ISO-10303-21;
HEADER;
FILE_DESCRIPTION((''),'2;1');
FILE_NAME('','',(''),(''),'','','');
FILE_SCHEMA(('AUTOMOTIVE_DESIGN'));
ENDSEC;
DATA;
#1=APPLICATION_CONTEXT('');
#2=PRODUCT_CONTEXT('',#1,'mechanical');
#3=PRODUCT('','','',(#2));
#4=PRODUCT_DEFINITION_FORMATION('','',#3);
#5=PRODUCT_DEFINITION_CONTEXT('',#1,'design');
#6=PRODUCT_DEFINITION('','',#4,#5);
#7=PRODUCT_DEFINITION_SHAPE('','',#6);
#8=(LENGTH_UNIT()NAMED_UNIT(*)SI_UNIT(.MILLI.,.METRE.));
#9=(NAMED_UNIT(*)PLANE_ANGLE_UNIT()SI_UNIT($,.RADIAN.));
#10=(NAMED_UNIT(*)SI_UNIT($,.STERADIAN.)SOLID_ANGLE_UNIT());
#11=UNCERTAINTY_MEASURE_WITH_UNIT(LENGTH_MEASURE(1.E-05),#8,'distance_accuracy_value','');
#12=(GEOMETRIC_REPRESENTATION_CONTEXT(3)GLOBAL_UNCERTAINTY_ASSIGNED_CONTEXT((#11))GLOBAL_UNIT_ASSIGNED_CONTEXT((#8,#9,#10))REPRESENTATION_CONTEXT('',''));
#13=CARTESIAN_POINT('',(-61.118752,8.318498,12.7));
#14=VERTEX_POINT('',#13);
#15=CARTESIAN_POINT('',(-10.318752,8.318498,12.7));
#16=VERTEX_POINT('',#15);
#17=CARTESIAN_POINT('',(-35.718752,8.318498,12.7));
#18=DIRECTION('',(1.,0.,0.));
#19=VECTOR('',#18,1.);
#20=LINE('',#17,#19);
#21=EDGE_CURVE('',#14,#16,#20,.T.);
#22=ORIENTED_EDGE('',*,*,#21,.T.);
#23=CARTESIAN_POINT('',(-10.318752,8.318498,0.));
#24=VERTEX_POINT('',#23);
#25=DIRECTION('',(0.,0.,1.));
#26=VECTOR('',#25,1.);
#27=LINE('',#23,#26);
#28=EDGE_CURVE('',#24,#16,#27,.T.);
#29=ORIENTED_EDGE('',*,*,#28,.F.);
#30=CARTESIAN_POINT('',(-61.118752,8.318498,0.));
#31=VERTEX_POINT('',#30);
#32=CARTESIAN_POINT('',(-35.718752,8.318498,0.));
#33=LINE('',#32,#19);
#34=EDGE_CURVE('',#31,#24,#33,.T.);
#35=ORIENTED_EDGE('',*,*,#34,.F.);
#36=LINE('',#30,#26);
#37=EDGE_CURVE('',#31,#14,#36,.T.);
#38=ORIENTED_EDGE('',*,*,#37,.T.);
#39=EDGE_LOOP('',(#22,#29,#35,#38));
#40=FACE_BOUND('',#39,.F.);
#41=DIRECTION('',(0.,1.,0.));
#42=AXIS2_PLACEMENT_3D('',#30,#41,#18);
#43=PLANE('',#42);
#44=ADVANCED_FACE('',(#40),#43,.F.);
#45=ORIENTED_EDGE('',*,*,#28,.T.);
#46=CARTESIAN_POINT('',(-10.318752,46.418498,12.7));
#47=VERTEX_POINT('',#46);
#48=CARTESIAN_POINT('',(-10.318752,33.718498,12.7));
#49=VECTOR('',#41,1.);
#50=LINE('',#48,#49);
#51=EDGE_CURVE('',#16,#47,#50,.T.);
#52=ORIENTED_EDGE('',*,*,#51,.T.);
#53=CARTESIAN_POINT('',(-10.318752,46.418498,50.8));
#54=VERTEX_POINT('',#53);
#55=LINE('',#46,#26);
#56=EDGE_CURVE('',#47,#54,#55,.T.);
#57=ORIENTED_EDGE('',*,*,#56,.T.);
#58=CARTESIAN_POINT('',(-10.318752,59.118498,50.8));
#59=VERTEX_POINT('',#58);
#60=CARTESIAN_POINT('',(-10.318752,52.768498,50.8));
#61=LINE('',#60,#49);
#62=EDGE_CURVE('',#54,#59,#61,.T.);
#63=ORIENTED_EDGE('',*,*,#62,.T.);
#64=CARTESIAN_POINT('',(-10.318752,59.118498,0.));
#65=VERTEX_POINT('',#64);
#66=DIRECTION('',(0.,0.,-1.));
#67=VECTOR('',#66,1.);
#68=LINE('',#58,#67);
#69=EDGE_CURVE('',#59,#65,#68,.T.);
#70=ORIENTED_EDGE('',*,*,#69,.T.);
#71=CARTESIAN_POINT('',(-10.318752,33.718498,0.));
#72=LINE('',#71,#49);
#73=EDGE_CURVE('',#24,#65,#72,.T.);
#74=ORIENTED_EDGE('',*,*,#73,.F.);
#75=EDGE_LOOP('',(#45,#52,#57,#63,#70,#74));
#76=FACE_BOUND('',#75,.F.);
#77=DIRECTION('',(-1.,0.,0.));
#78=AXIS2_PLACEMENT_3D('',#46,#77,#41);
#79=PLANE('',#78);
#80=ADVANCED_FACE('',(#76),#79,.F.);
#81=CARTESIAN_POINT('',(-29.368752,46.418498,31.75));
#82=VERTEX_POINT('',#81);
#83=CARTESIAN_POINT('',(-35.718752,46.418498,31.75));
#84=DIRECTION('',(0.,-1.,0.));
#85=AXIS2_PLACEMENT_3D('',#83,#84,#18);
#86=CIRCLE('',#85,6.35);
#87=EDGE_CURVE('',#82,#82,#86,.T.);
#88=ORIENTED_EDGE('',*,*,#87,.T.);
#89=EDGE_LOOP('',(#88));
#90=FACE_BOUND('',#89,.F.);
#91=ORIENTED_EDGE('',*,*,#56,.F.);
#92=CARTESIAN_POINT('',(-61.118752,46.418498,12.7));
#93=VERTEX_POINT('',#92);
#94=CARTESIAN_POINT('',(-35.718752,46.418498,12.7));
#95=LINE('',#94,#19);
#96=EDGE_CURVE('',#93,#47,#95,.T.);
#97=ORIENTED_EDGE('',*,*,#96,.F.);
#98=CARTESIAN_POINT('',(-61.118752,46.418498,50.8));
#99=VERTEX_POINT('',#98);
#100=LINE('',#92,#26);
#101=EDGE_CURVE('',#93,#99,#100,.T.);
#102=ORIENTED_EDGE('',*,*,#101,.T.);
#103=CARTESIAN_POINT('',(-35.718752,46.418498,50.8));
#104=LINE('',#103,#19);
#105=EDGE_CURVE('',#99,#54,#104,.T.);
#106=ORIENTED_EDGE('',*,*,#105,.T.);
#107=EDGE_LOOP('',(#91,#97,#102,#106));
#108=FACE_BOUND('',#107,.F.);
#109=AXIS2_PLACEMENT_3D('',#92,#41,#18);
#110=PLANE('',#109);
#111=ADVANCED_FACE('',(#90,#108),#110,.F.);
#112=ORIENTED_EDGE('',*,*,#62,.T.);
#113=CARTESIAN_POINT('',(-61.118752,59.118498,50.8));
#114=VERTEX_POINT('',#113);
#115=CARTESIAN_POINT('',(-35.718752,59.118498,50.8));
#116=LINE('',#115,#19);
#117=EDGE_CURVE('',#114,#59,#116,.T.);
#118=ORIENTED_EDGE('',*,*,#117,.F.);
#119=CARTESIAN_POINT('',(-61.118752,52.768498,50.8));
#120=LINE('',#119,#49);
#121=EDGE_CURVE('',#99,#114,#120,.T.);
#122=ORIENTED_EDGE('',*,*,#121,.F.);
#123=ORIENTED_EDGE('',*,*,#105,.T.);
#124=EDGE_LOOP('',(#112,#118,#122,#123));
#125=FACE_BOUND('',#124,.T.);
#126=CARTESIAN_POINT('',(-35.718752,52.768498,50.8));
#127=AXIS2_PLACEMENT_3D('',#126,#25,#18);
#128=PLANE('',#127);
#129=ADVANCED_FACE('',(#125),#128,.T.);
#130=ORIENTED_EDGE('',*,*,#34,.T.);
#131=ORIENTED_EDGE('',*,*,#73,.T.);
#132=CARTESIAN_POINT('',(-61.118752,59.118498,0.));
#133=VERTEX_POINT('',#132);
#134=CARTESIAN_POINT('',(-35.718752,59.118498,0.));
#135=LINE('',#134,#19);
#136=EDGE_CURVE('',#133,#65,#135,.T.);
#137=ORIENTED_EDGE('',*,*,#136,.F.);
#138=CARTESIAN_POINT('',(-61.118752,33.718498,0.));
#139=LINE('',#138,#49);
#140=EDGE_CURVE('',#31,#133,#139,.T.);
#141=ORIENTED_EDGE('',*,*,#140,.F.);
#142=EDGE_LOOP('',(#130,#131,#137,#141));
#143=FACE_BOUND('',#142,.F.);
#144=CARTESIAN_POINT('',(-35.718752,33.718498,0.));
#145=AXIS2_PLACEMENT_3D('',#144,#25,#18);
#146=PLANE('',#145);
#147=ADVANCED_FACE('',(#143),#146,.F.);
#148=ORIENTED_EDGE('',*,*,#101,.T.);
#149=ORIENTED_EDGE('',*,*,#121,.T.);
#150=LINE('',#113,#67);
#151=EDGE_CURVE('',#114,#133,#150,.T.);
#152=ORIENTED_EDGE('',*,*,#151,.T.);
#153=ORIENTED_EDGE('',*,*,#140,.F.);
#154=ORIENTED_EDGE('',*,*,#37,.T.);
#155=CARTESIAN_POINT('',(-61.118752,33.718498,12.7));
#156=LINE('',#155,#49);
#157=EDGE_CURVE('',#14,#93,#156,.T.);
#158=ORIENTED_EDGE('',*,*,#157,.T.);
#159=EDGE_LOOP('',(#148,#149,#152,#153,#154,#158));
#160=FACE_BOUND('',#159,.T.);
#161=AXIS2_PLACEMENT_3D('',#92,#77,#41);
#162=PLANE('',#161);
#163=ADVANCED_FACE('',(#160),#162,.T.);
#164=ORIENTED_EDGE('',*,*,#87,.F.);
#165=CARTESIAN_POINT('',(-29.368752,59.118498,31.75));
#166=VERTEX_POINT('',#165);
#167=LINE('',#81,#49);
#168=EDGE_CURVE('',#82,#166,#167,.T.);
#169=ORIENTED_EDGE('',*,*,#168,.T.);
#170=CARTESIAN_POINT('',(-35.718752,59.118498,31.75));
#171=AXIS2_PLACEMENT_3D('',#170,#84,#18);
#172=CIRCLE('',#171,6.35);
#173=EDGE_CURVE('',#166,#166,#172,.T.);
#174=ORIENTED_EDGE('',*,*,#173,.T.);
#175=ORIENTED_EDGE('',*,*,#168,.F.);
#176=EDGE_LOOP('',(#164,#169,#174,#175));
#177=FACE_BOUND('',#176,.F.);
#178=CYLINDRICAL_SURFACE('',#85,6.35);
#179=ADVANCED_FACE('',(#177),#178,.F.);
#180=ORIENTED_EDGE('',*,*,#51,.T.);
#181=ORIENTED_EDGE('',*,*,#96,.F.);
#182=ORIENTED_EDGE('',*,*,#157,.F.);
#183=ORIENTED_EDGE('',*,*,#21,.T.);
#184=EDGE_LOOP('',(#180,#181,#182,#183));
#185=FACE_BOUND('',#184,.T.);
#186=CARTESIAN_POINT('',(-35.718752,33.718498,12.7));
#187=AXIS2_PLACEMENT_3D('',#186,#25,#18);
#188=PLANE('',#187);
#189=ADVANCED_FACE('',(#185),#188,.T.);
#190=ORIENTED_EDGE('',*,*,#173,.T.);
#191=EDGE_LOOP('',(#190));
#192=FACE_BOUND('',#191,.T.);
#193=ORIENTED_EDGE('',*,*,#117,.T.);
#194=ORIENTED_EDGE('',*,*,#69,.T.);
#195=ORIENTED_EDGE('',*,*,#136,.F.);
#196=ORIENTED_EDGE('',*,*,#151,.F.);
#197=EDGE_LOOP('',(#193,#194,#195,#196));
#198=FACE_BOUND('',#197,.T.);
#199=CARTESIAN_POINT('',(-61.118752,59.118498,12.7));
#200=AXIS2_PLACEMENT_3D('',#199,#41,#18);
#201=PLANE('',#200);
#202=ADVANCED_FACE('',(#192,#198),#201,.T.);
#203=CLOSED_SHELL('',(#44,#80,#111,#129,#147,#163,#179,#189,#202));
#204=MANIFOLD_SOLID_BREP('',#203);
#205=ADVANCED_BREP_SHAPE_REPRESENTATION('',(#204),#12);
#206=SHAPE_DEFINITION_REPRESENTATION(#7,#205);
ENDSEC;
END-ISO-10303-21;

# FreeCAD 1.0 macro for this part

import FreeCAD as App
import Part
import Sketcher
from FreeCAD import Vector
Q = App.Units.Quantity

doc = App.newDocument("Part")
body = doc.addObject("PartDesign::Body", "Body")

# Sketch on XY plane
sketch1 = body.newObject("Sketcher::SketchObject", "Sketch")
sketch1.AttachmentSupport = (doc.getObject("XY_Plane"), [""])
sketch1.MapMode = "FlatFace"
sketch1.addGeometry([
    Part.LineSegment(Vector(-61.118752, 59.118498, 0), Vector(-61.118752, 8.318498, 0)),
    Part.LineSegment(Vector(-61.118752, 8.318498, 0), Vector(-10.318752, 8.318498, 0)),
    Part.LineSegment(Vector(-10.318752, 8.318498, 0), Vector(-10.318752, 59.118498, 0)),
    Part.LineSegment(Vector(-10.318752, 59.118498, 0), Vector(-61.118752, 59.118498, 0)),
], False)
sketch1.addConstraint([
    Sketcher.Constraint("Coincident", 0, 2, 1, 1),
    Sketcher.Constraint("Coincident", 1, 2, 2, 1),
    Sketcher.Constraint("Coincident", 2, 2, 3, 1),
    Sketcher.Constraint("Coincident", 3, 2, 0, 1),
    Sketcher.Constraint("Vertical", 0),
    Sketcher.Constraint("Horizontal", 1),
    Sketcher.Constraint("Vertical", 2),
    Sketcher.Constraint("Horizontal", 3),
    Sketcher.Constraint("Equal", 3, 0),
    Sketcher.Constraint("DistanceX", 1, 1, 1, 2, Q("2 in")),
    Sketcher.Constraint("DistanceX", 0, 2, -1, 1, Q("2.4062501 in")),
    Sketcher.Constraint("DistanceY", -1, 1, 0, 2, Q("0.3274999 in")),
])
pad1 = body.newObject("PartDesign::Pad", "Pad")
pad1.Profile = sketch1
pad1.Length = Q("0.5 in")

# Sketch on XY plane
sketch2 = body.newObject("Sketcher::SketchObject", "Sketch001")
sketch2.AttachmentSupport = (doc.getObject("XY_Plane"), [""])
sketch2.MapMode = "FlatFace"
sketch2.AttachmentOffset = App.Placement(Vector(0, 0, 0.5 * 25.4), App.Rotation())
sketch2.addGeometry([
    Part.LineSegment(Vector(-61.118752, 59.118498, 0), Vector(-61.118752, 46.418498, 0)),
    Part.LineSegment(Vector(-61.118752, 46.418498, 0), Vector(-10.318752, 46.418498, 0)),
    Part.LineSegment(Vector(-10.318752, 46.418498, 0), Vector(-10.318752, 59.118498, 0)),
    Part.LineSegment(Vector(-10.318752, 59.118498, 0), Vector(-61.118752, 59.118498, 0)),
], False)
sketch2.addConstraint([
    Sketcher.Constraint("Coincident", 0, 2, 1, 1),
    Sketcher.Constraint("Coincident", 1, 2, 2, 1),
    Sketcher.Constraint("Coincident", 2, 2, 3, 1),
    Sketcher.Constraint("Coincident", 3, 2, 0, 1),
    Sketcher.Constraint("Vertical", 0),
    Sketcher.Constraint("Horizontal", 1),
    Sketcher.Constraint("Vertical", 2),
    Sketcher.Constraint("Horizontal", 3),
    Sketcher.Constraint("DistanceX", 1, 1, 1, 2, Q("2 in")),
    Sketcher.Constraint("DistanceY", 0, 2, 0, 1, Q("0.5 in")),
    Sketcher.Constraint("DistanceX", 0, 2, -1, 1, Q("2.4062501 in")),
    Sketcher.Constraint("DistanceY", -1, 1, 0, 2, Q("1.8274999 in")),
])
pad2 = body.newObject("PartDesign::Pad", "Pad001")
pad2.Profile = sketch2
pad2.Length = Q("1.5 in")

# Sketch on XZ plane
sketch3 = body.newObject("Sketcher::SketchObject", "Sketch002")
sketch3.AttachmentSupport = (doc.getObject("XZ_Plane"), [""])
sketch3.MapMode = "FlatFace"
sketch3.AttachmentOffset = App.Placement(Vector(0, 0, -1.8274999 * 25.4), App.Rotation())
sketch3.addGeometry(Part.Circle(Vector(-35.718752, 31.75, 0), Vector(0, 0, 1), 6.35), False)
sketch3.addConstraint([
    Sketcher.Constraint("Diameter", 0, Q("0.5 in")),
    Sketcher.Constraint("DistanceY", -1, 1, 0, 3, Q("1.25 in")),
    Sketcher.Constraint("DistanceX", 0, 3, -1, 1, Q("1.4062501 in")),
])
pocket1 = body.newObject("PartDesign::Pocket", "Pocket")
pocket1.Profile = sketch3
pocket1.Type = "ThroughAll"

doc.recompute()
